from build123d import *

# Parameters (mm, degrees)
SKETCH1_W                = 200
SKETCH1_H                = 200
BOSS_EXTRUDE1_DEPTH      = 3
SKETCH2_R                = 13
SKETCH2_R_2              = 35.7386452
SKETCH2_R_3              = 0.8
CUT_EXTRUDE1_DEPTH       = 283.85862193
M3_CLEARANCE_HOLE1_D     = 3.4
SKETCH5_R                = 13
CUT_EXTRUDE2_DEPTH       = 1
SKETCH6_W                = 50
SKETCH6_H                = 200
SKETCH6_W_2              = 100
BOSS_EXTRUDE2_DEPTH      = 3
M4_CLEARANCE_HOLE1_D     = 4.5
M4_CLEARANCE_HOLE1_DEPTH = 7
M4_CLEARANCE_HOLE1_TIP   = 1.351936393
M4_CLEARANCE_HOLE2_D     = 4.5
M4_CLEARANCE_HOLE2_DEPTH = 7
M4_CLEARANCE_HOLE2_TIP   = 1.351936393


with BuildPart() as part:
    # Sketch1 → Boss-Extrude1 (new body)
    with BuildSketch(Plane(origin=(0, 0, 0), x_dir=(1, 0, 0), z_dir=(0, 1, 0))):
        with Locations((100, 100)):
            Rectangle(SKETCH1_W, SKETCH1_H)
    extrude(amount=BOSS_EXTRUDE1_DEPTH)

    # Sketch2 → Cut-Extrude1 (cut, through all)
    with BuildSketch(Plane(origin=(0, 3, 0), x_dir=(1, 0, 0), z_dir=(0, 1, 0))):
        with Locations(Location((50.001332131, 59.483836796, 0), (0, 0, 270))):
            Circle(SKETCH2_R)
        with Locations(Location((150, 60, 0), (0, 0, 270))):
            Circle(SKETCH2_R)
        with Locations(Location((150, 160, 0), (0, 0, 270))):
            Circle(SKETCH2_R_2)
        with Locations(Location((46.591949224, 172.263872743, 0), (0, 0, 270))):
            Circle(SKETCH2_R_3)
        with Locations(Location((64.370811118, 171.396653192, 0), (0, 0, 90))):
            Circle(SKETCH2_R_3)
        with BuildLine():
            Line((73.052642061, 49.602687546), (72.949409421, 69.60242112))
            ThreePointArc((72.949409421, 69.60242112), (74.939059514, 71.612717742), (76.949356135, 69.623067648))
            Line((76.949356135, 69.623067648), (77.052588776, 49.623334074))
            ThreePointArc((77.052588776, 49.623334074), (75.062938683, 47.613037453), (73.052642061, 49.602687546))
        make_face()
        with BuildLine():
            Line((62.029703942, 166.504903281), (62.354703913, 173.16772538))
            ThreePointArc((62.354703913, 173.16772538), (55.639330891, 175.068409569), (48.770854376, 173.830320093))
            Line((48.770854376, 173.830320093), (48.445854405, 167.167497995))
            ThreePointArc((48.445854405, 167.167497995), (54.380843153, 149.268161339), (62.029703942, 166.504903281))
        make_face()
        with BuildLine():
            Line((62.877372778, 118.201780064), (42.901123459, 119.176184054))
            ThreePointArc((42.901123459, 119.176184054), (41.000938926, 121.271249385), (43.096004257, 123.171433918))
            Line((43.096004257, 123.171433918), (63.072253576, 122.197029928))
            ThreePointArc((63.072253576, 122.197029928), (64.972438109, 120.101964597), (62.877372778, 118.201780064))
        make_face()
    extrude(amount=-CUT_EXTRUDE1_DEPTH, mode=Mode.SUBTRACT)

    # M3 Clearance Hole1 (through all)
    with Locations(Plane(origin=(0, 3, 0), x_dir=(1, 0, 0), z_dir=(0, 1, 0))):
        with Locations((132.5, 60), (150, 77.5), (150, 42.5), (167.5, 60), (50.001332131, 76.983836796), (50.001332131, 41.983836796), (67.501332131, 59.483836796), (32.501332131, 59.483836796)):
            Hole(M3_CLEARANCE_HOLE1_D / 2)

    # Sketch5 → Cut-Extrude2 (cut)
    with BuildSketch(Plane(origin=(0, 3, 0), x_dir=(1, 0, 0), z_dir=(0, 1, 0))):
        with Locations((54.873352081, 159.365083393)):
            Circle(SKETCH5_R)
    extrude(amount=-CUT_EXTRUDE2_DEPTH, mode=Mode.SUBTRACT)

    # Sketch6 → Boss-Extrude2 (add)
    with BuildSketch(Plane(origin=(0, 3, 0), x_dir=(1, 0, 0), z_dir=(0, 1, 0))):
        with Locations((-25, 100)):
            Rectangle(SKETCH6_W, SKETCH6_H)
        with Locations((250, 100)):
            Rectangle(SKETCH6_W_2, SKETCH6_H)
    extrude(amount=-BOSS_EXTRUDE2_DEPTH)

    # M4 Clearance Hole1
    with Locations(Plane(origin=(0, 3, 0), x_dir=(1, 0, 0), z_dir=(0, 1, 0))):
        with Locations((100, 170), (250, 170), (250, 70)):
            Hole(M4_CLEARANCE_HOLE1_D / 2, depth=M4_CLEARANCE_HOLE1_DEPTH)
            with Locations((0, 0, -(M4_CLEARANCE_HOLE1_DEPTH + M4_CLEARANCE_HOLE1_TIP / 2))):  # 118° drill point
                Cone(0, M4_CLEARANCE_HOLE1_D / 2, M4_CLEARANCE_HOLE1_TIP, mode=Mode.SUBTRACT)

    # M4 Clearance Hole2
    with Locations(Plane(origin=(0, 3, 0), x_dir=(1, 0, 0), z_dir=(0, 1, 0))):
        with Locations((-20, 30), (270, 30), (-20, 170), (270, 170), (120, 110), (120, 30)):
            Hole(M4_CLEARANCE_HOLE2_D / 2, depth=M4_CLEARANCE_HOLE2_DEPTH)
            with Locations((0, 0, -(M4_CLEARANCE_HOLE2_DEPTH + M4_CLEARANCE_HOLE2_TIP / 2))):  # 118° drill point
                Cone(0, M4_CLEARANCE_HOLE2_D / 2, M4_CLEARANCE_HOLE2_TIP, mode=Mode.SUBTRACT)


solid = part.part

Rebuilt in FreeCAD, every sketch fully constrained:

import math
import FreeCAD as App
import Part
import Sketcher

V = App.Vector
Q = App.Units.Quantity


def add_polygon(sketch, points):
    """Adds a closed chain of lines whose ends are joined by coincident constraints."""
    first, n = sketch.GeometryCount, len(points)
    for a, b in zip(points, points[1:] + points[:1]):
        sketch.addGeometry(Part.LineSegment(App.Vector(*a, 0), App.Vector(*b, 0)), False)
    for i in range(n):
        sketch.addConstraint(Sketcher.Constraint("Coincident", first + i, 2, first + (i + 1) % n, 1))

doc = App.newDocument("Part")
params = doc.addObject("Spreadsheet::Sheet", "Params")
for row, (alias, value) in enumerate([
    ("sketch1_width", "200 mm"),
    ("pad1_length", "3 mm"),
    ("sketch2_diameter", "26 mm"),
    ("sketch2_radius", "2 mm"),
    ("sketch2_diameter2", "1.6 mm"),
    ("sketch2_radius2", "15.5 mm"),
    ("sketch2_length", "20 mm"),
    ("sketch3_diameter", "3.4 mm"),
    ("hole_diameter", "3.4 mm"),
    ("sketch4_diameter", "26 mm"),
    ("pocket2_length", "1 mm"),
    ("sketch5_width", "50 mm"),
    ("sketch5_width2", "100 mm"),
    ("sketch5_height", "200 mm"),
    ("pad2_length", "3 mm"),
    ("sketch6_diameter", "4.5 mm"),
    ("hole2_diameter", "4.5 mm"),
    ("hole2_depth", "7 mm"),
    ("sketch7_diameter", "4.5 mm"),
    ("hole3_diameter", "4.5 mm"),
    ("hole3_depth", "7 mm"),
], start=1):
    params.set(f"A{row}", alias)
    params.set(f"B{row}", "=" + value)
    params.setAlias(f"B{row}", alias)

body = doc.addObject("PartDesign::Body", "Body")

# Sketch on XZ plane
sketch1 = body.newObject("Sketcher::SketchObject", "Sketch")
sketch1.AttachmentSupport = (doc.getObject("XZ_Plane"), [""])
sketch1.MapMode = "FlatFace"
add_polygon(sketch1, [(0, -200), (0, 0), (200, 0), (200, -200)])  # lines 0-3
sketch1.addConstraint(Sketcher.Constraint("Vertical", 0))
sketch1.addConstraint(Sketcher.Constraint("Horizontal", 1))
sketch1.addConstraint(Sketcher.Constraint("Vertical", 2))
sketch1.addConstraint(Sketcher.Constraint("Horizontal", 3))
sketch1.addConstraint(Sketcher.Constraint("Coincident", 0, 2, -1, 1))
sketch1.addConstraint(Sketcher.Constraint("Equal", 3, 0))
sketch1.addConstraint(Sketcher.Constraint("DistanceX", 1, 1, 1, 2, Q("200 mm")))
sketch1.setExpression("Constraints[10]", "Params.sketch1_width")
pad1 = body.newObject("PartDesign::Pad", "Pad")
pad1.Profile = sketch1
pad1.setExpression("Length", "Params.pad1_length")
pad1.Reversed = True

# Sketch on XZ plane
sketch2 = body.newObject("Sketcher::SketchObject", "Sketch001")
sketch2.AttachmentSupport = (doc.getObject("XZ_Plane"), [""])
sketch2.MapMode = "FlatFace"
sketch2.AttachmentOffset = App.Placement(V(0, 0, -3), App.Rotation())
sketch2.addGeometry(Part.Circle(V(50.001332, -59.483837, 0), V(0, 0, 1), 13), False)
sketch2.addGeometry(Part.Circle(V(150, -60, 0), V(0, 0, 1), 13), False)
sketch2.addGeometry(Part.Circle(V(150, -160, 0), V(0, 0, 1), 35.738645), False)
sketch2.addGeometry(Part.Circle(V(46.591949, -172.263873, 0), V(0, 0, 1), 0.8), False)
sketch2.addGeometry(Part.Circle(V(64.370811, -171.396653, 0), V(0, 0, 1), 0.8), False)
sketch2.addGeometry(Part.LineSegment(V(72.949409, -69.602421, 0), V(73.052642, -49.602688, 0)), False)
sketch2.addGeometry(Part.ArcOfCircle(Part.Circle(V(75.052615, -49.613011, 0), V(0, 0, 1), 2), math.radians(-0.295741), math.radians(179.704259)), False)
sketch2.addGeometry(Part.LineSegment(V(77.052589, -49.623334, 0), V(76.949356, -69.623068, 0)), False)
sketch2.addGeometry(Part.ArcOfCircle(Part.Circle(V(74.949383, -69.612744, 0), V(0, 0, 1), 2), math.radians(179.704259), math.radians(359.704259)), False)
sketch2.addGeometry(Part.LineSegment(V(62.029704, -166.504903, 0), V(62.354704, -173.167725, 0)), False)
sketch2.addGeometry(Part.ArcOfCircle(Part.Circle(V(54.884168, -159.586816, 0), V(0, 0, 1), 15.5), math.radians(-113.229015), math.radians(-61.18585)), False)
sketch2.addGeometry(Part.LineSegment(V(48.770854, -173.83032, 0), V(48.445854, -167.167498, 0)), False)
sketch2.addGeometry(Part.ArcOfCircle(Part.Circle(V(54.873352, -159.365083, 0), V(0, 0, 1), 10.108927), math.radians(-44.933744), math.radians(230.518878)), False)
sketch2.addGeometry(Part.LineSegment(V(42.901123, -119.176184, 0), V(62.877373, -118.20178, 0)), False)
sketch2.addGeometry(Part.ArcOfCircle(Part.Circle(V(62.974813, -120.199405, 0), V(0, 0, 1), 2), math.radians(-87.207433), math.radians(92.792567)), False)
sketch2.addGeometry(Part.LineSegment(V(63.072254, -122.19703, 0), V(43.096004, -123.171434, 0)), False)
sketch2.addGeometry(Part.ArcOfCircle(Part.Circle(V(42.998564, -121.173809, 0), V(0, 0, 1), 2), math.radians(92.792567), math.radians(272.792567)), False)
sketch2.addConstraint(Sketcher.Constraint("Tangent", 5, 2, 6, 2))
sketch2.addConstraint(Sketcher.Constraint("Tangent", 6, 1, 7, 1))
sketch2.addConstraint(Sketcher.Constraint("Tangent", 7, 2, 8, 2))
sketch2.addConstraint(Sketcher.Constraint("Tangent", 8, 1, 5, 1))
sketch2.addConstraint(Sketcher.Constraint("Coincident", 9, 2, 10, 2))
sketch2.addConstraint(Sketcher.Constraint("Coincident", 10, 1, 11, 1))
sketch2.addConstraint(Sketcher.Constraint("Coincident", 11, 2, 12, 2))
sketch2.addConstraint(Sketcher.Constraint("Coincident", 12, 1, 9, 1))
sketch2.addConstraint(Sketcher.Constraint("Tangent", 13, 2, 14, 2))
sketch2.addConstraint(Sketcher.Constraint("Tangent", 14, 1, 15, 1))
sketch2.addConstraint(Sketcher.Constraint("Tangent", 15, 2, 16, 2))
sketch2.addConstraint(Sketcher.Constraint("Tangent", 16, 1, 13, 1))
sketch2.addConstraint(Sketcher.Constraint("Equal", 0, 1))
sketch2.addConstraint(Sketcher.Constraint("Equal", 3, 4))
sketch2.addConstraint(Sketcher.Constraint("Equal", 6, 8))
sketch2.addConstraint(Sketcher.Constraint("Equal", 8, 14))
sketch2.addConstraint(Sketcher.Constraint("Equal", 14, 16))
sketch2.addConstraint(Sketcher.Constraint("Parallel", 9, 11))
sketch2.addConstraint(Sketcher.Constraint("Perpendicular", 11, 13))
sketch2.addConstraint(Sketcher.Constraint("Vertical", 1, 3, 2, 3))
sketch2.addConstraint(Sketcher.Constraint("Equal", 9, 11))
sketch2.addConstraint(Sketcher.Constraint("Equal", 7, 13))
sketch2.addConstraint(Sketcher.Constraint("Diameter", 0, Q("26 mm")))
sketch2.addConstraint(Sketcher.Constraint("Radius", 6, Q("2 mm")))
sketch2.addConstraint(Sketcher.Constraint("Diameter", 3, Q("1.6 mm")))
sketch2.addConstraint(Sketcher.Constraint("Radius", 10, Q("15.5 mm")))
sketch2.addConstraint(Sketcher.Constraint("Distance", 5, Q("20 mm")))
sketch2.addConstraint(Sketcher.Constraint("DistanceX", -1, 1, 1, 3, Q("150 mm")))
sketch2.addConstraint(Sketcher.Constraint("DistanceY", 1, 3, -1, 1, Q("60 mm")))
sketch2.addConstraint(Sketcher.Constraint("DistanceY", 2, 3, -1, 1, Q("160 mm")))
sketch2.addConstraint(Sketcher.Constraint("Diameter", 2, Q("71.47729 mm")))
sketch2.addConstraint(Sketcher.Constraint("Radius", 12, Q("10.108927 mm")))
sketch2.addConstraint(Sketcher.Constraint("DistanceX", 11, 2, 10, 1, Q("0.325 mm")))
sketch2.addConstraint(Sketcher.Constraint("DistanceX", 12, 3, 14, 1, Q("8.198901 mm")))
sketch2.addConstraint(Sketcher.Constraint("DistanceX", -1, 1, 3, 3, Q("46.591949 mm")))
sketch2.addConstraint(Sketcher.Constraint("DistanceX", -1, 1, 4, 3, Q("64.370811 mm")))
sketch2.addConstraint(Sketcher.Constraint("DistanceY", 6, 3, -1, 1, Q("49.613011 mm")))
sketch2.addConstraint(Sketcher.Constraint("DistanceY", 16, 3, -1, 1, Q("121.173809 mm")))
sketch2.addConstraint(Sketcher.Constraint("DistanceX", -1, 1, 6, 1, Q("77.052589 mm")))
sketch2.addConstraint(Sketcher.Constraint("DistanceX", -1, 1, 8, 1, Q("72.949409 mm")))
sketch2.addConstraint(Sketcher.Constraint("DistanceY", 10, 1, -1, 1, Q("173.83032 mm")))
sketch2.addConstraint(Sketcher.Constraint("DistanceY", 13, 2, -1, 1, Q("118.20178 mm")))
sketch2.addConstraint(Sketcher.Constraint("DistanceY", 3, 3, 4, 3, Q("0.86722 mm")))
sketch2.addConstraint(Sketcher.Constraint("DistanceX", 0, 3, 4, 3, Q("14.369479 mm")))
sketch2.addConstraint(Sketcher.Constraint("DistanceY", 3, 3, 6, 3, Q("122.650862 mm")))
sketch2.addConstraint(Sketcher.Constraint("DistanceX", 3, 3, 10, 3, Q("8.292219 mm")))
sketch2.addConstraint(Sketcher.Constraint("DistanceY", 10, 3, 8, 3, Q("89.974072 mm")))
sketch2.addConstraint(Sketcher.Constraint("DistanceY", 10, 3, 0, 3, Q("100.10298 mm")))
sketch2.addConstraint(Sketcher.Constraint("DistanceY", 3, 3, 12, 3, Q("12.898789 mm")))
sketch2.setExpression("Constraints[22]", "Params.sketch2_diameter")
sketch2.setExpression("Constraints[23]", "Params.sketch2_radius")
sketch2.setExpression("Constraints[24]", "Params.sketch2_diameter2")
sketch2.setExpression("Constraints[25]", "Params.sketch2_radius2")
sketch2.setExpression("Constraints[26]", "Params.sketch2_length")
pocket1 = body.newObject("PartDesign::Pocket", "Pocket")
pocket1.Profile = sketch2
pocket1.Type = "ThroughAll"
pocket1.Reversed = True

# Sketch on XZ plane
sketch3 = body.newObject("Sketcher::SketchObject", "Sketch002")
sketch3.AttachmentSupport = (doc.getObject("XZ_Plane"), [""])
sketch3.MapMode = "FlatFace"
sketch3.AttachmentOffset = App.Placement(V(0, 0, -3), App.Rotation())
sketch3.addGeometry(Part.Circle(V(132.5, -60, 0), V(0, 0, 1), 1.7), False)
sketch3.addGeometry(Part.Circle(V(150, -77.5, 0), V(0, 0, 1), 1.7), False)
sketch3.addGeometry(Part.Circle(V(150, -42.5, 0), V(0, 0, 1), 1.7), False)
sketch3.addGeometry(Part.Circle(V(167.5, -60, 0), V(0, 0, 1), 1.7), False)
sketch3.addGeometry(Part.Circle(V(50.001332, -76.983837, 0), V(0, 0, 1), 1.7), False)
sketch3.addGeometry(Part.Circle(V(50.001332, -41.983837, 0), V(0, 0, 1), 1.7), False)
sketch3.addGeometry(Part.Circle(V(67.501332, -59.483837, 0), V(0, 0, 1), 1.7), False)
sketch3.addGeometry(Part.Circle(V(32.501332, -59.483837, 0), V(0, 0, 1), 1.7), False)
sketch3.addConstraint(Sketcher.Constraint("Equal", 0, 1))
sketch3.addConstraint(Sketcher.Constraint("Equal", 1, 2))
sketch3.addConstraint(Sketcher.Constraint("Equal", 2, 3))
sketch3.addConstraint(Sketcher.Constraint("Equal", 3, 4))
sketch3.addConstraint(Sketcher.Constraint("Equal", 4, 5))
sketch3.addConstraint(Sketcher.Constraint("Equal", 5, 6))
sketch3.addConstraint(Sketcher.Constraint("Equal", 6, 7))
sketch3.addConstraint(Sketcher.Constraint("Horizontal", 0, 3, 3, 3))
sketch3.addConstraint(Sketcher.Constraint("Horizontal", 6, 3, 7, 3))
sketch3.addConstraint(Sketcher.Constraint("Vertical", 1, 3, 2, 3))
sketch3.addConstraint(Sketcher.Constraint("Vertical", 4, 3, 5, 3))
sketch3.addConstraint(Sketcher.Constraint("Diameter", 0, Q("3.4 mm")))
sketch3.addConstraint(Sketcher.Constraint("DistanceY", 0, 3, -1, 1, Q("60 mm")))
sketch3.addConstraint(Sketcher.Constraint("DistanceX", -1, 1, 1, 3, Q("150 mm")))
sketch3.addConstraint(Sketcher.Constraint("DistanceY", 1, 3, 2, 3, Q("35 mm")))
sketch3.addConstraint(Sketcher.Constraint("DistanceX", 0, 3, 3, 3, Q("35 mm")))
sketch3.addConstraint(Sketcher.Constraint("DistanceY", 4, 3, 5, 3, Q("35 mm")))
sketch3.addConstraint(Sketcher.Constraint("DistanceX", 7, 3, 6, 3, Q("35 mm")))
sketch3.addConstraint(Sketcher.Constraint("DistanceX", -1, 1, 0, 3, Q("132.5 mm")))
sketch3.addConstraint(Sketcher.Constraint("DistanceY", 1, 3, -1, 1, Q("77.5 mm")))
sketch3.addConstraint(Sketcher.Constraint("DistanceX", 5, 3, 6, 3, Q("17.5 mm")))
sketch3.addConstraint(Sketcher.Constraint("DistanceY", 6, 3, 5, 3, Q("17.5 mm")))
sketch3.addConstraint(Sketcher.Constraint("DistanceX", -1, 1, 4, 3, Q("50.001332 mm")))
sketch3.addConstraint(Sketcher.Constraint("DistanceY", 4, 3, -1, 1, Q("76.983837 mm")))
sketch3.setExpression("Constraints[11]", "Params.sketch3_diameter")
doc.recompute()
hole = body.newObject("PartDesign::Hole", "Hole")
hole.Profile = sketch3
hole.ThreadType = "None"
hole.setExpression("Diameter", "Params.hole_diameter")
hole.DepthType = "ThroughAll"
hole.Reversed = True

# Sketch on XZ plane
sketch4 = body.newObject("Sketcher::SketchObject", "Sketch003")
sketch4.AttachmentSupport = (doc.getObject("XZ_Plane"), [""])
sketch4.MapMode = "FlatFace"
sketch4.AttachmentOffset = App.Placement(V(0, 0, -3), App.Rotation())
sketch4.addGeometry(Part.Circle(V(54.873352, -159.365083, 0), V(0, 0, 1), 13), False)
sketch4.addConstraint(Sketcher.Constraint("Diameter", 0, Q("26 mm")))
sketch4.addConstraint(Sketcher.Constraint("DistanceX", -1, 1, 0, 3, Q("54.873352 mm")))
sketch4.addConstraint(Sketcher.Constraint("DistanceY", 0, 3, -1, 1, Q("159.365083 mm")))
sketch4.setExpression("Constraints[0]", "Params.sketch4_diameter")
pocket2 = body.newObject("PartDesign::Pocket", "Pocket001")
pocket2.Profile = sketch4
pocket2.setExpression("Length", "Params.pocket2_length")
pocket2.Reversed = True

# Sketch on XZ plane
sketch5 = body.newObject("Sketcher::SketchObject", "Sketch004")
sketch5.AttachmentSupport = (doc.getObject("XZ_Plane"), [""])
sketch5.MapMode = "FlatFace"
sketch5.AttachmentOffset = App.Placement(V(0, 0, -3), App.Rotation())
add_polygon(sketch5, [(-50, -200), (-50, 0), (0, 0), (0, -200)])  # lines 0-3
add_polygon(sketch5, [(200, -200), (200, 0), (300, 0), (300, -200)])  # lines 4-7
sketch5.addConstraint(Sketcher.Constraint("Vertical", 0))
sketch5.addConstraint(Sketcher.Constraint("Horizontal", 1))
sketch5.addConstraint(Sketcher.Constraint("Vertical", 2))
sketch5.addConstraint(Sketcher.Constraint("Horizontal", 3))
sketch5.addConstraint(Sketcher.Constraint("Vertical", 4))
sketch5.addConstraint(Sketcher.Constraint("Horizontal", 5))
sketch5.addConstraint(Sketcher.Constraint("Vertical", 6))
sketch5.addConstraint(Sketcher.Constraint("Horizontal", 7))
sketch5.addConstraint(Sketcher.Constraint("Coincident", 1, 2, -1, 1))
sketch5.addConstraint(Sketcher.Constraint("PointOnObject", 4, 2, -1))
sketch5.addConstraint(Sketcher.Constraint("Horizontal", 3, 2, 6, 2))
sketch5.addConstraint(Sketcher.Constraint("DistanceX", 1, 1, 1, 2, Q("50 mm")))
sketch5.addConstraint(Sketcher.Constraint("DistanceX", 5, 1, 5, 2, Q("100 mm")))
sketch5.addConstraint(Sketcher.Constraint("DistanceY", 0, 1, 0, 2, Q("200 mm")))
sketch5.addConstraint(Sketcher.Constraint("DistanceX", -1, 1, 4, 2, Q("200 mm")))
sketch5.setExpression("Constraints[19]", "Params.sketch5_width")
sketch5.setExpression("Constraints[20]", "Params.sketch5_width2")
sketch5.setExpression("Constraints[21]", "Params.sketch5_height")
pad2 = body.newObject("PartDesign::Pad", "Pad001")
pad2.Profile = sketch5
pad2.setExpression("Length", "Params.pad2_length")

# Sketch on XZ plane
sketch6 = body.newObject("Sketcher::SketchObject", "Sketch005")
sketch6.AttachmentSupport = (doc.getObject("XZ_Plane"), [""])
sketch6.MapMode = "FlatFace"
sketch6.AttachmentOffset = App.Placement(V(0, 0, -3), App.Rotation())
sketch6.addGeometry(Part.Circle(V(100, -170, 0), V(0, 0, 1), 2.25), False)
sketch6.addGeometry(Part.Circle(V(250, -170, 0), V(0, 0, 1), 2.25), False)
sketch6.addGeometry(Part.Circle(V(250, -70, 0), V(0, 0, 1), 2.25), False)
sketch6.addConstraint(Sketcher.Constraint("Equal", 0, 1))
sketch6.addConstraint(Sketcher.Constraint("Equal", 1, 2))
sketch6.addConstraint(Sketcher.Constraint("Horizontal", 0, 3, 1, 3))
sketch6.addConstraint(Sketcher.Constraint("Vertical", 1, 3, 2, 3))
sketch6.addConstraint(Sketcher.Constraint("Diameter", 0, Q("4.5 mm")))
sketch6.addConstraint(Sketcher.Constraint("DistanceX", -1, 1, 0, 3, Q("100 mm")))
sketch6.addConstraint(Sketcher.Constraint("DistanceY", 0, 3, -1, 1, Q("170 mm")))
sketch6.addConstraint(Sketcher.Constraint("DistanceX", -1, 1, 1, 3, Q("250 mm")))
sketch6.addConstraint(Sketcher.Constraint("DistanceY", 2, 3, -1, 1, Q("70 mm")))
sketch6.setExpression("Constraints[4]", "Params.sketch6_diameter")
doc.recompute()
hole2 = body.newObject("PartDesign::Hole", "Hole001")
hole2.Profile = sketch6
hole2.ThreadType = "None"
hole2.setExpression("Diameter", "Params.hole2_diameter")
hole2.DepthType = "Dimension"
hole2.setExpression("Depth", "Params.hole2_depth")
hole2.DrillPoint = "Angled"
hole2.DrillPointAngle = 118
hole2.Reversed = True

# Sketch on XZ plane
sketch7 = body.newObject("Sketcher::SketchObject", "Sketch006")
sketch7.AttachmentSupport = (doc.getObject("XZ_Plane"), [""])
sketch7.MapMode = "FlatFace"
sketch7.AttachmentOffset = App.Placement(V(0, 0, -3), App.Rotation())
sketch7.addGeometry(Part.Circle(V(-20, -30, 0), V(0, 0, 1), 2.25), False)
sketch7.addGeometry(Part.Circle(V(270, -30, 0), V(0, 0, 1), 2.25), False)
sketch7.addGeometry(Part.Circle(V(-20, -170, 0), V(0, 0, 1), 2.25), False)
sketch7.addGeometry(Part.Circle(V(270, -170, 0), V(0, 0, 1), 2.25), False)
sketch7.addGeometry(Part.Circle(V(120, -110, 0), V(0, 0, 1), 2.25), False)
sketch7.addGeometry(Part.Circle(V(120, -30, 0), V(0, 0, 1), 2.25), False)
sketch7.addConstraint(Sketcher.Constraint("Equal", 0, 1))
sketch7.addConstraint(Sketcher.Constraint("Equal", 1, 2))
sketch7.addConstraint(Sketcher.Constraint("Equal", 2, 3))
sketch7.addConstraint(Sketcher.Constraint("Equal", 3, 4))
sketch7.addConstraint(Sketcher.Constraint("Equal", 4, 5))
sketch7.addConstraint(Sketcher.Constraint("Horizontal", 0, 3, 1, 3))
sketch7.addConstraint(Sketcher.Constraint("Horizontal", 2, 3, 3, 3))
sketch7.addConstraint(Sketcher.Constraint("Horizontal", 1, 3, 5, 3))
sketch7.addConstraint(Sketcher.Constraint("Vertical", 0, 3, 2, 3))
sketch7.addConstraint(Sketcher.Constraint("Vertical", 1, 3, 3, 3))
sketch7.addConstraint(Sketcher.Constraint("Vertical", 4, 3, 5, 3))
sketch7.addConstraint(Sketcher.Constraint("Diameter", 0, Q("4.5 mm")))
sketch7.addConstraint(Sketcher.Constraint("DistanceX", 0, 3, -1, 1, Q("20 mm")))
sketch7.addConstraint(Sketcher.Constraint("DistanceY", 0, 3, -1, 1, Q("30 mm")))
sketch7.addConstraint(Sketcher.Constraint("DistanceX", -1, 1, 1, 3, Q("270 mm")))
sketch7.addConstraint(Sketcher.Constraint("DistanceY", 2, 3, -1, 1, Q("170 mm")))
sketch7.addConstraint(Sketcher.Constraint("DistanceX", -1, 1, 4, 3, Q("120 mm")))
sketch7.addConstraint(Sketcher.Constraint("DistanceY", 4, 3, -1, 1, Q("110 mm")))
sketch7.setExpression("Constraints[11]", "Params.sketch7_diameter")
doc.recompute()
hole3 = body.newObject("PartDesign::Hole", "Hole002")
hole3.Profile = sketch7
hole3.ThreadType = "None"
hole3.setExpression("Diameter", "Params.hole3_diameter")
hole3.DepthType = "Dimension"
hole3.setExpression("Depth", "Params.hole3_depth")
hole3.DrillPoint = "Angled"
hole3.DrillPointAngle = 118
hole3.Reversed = True

doc.recompute()
